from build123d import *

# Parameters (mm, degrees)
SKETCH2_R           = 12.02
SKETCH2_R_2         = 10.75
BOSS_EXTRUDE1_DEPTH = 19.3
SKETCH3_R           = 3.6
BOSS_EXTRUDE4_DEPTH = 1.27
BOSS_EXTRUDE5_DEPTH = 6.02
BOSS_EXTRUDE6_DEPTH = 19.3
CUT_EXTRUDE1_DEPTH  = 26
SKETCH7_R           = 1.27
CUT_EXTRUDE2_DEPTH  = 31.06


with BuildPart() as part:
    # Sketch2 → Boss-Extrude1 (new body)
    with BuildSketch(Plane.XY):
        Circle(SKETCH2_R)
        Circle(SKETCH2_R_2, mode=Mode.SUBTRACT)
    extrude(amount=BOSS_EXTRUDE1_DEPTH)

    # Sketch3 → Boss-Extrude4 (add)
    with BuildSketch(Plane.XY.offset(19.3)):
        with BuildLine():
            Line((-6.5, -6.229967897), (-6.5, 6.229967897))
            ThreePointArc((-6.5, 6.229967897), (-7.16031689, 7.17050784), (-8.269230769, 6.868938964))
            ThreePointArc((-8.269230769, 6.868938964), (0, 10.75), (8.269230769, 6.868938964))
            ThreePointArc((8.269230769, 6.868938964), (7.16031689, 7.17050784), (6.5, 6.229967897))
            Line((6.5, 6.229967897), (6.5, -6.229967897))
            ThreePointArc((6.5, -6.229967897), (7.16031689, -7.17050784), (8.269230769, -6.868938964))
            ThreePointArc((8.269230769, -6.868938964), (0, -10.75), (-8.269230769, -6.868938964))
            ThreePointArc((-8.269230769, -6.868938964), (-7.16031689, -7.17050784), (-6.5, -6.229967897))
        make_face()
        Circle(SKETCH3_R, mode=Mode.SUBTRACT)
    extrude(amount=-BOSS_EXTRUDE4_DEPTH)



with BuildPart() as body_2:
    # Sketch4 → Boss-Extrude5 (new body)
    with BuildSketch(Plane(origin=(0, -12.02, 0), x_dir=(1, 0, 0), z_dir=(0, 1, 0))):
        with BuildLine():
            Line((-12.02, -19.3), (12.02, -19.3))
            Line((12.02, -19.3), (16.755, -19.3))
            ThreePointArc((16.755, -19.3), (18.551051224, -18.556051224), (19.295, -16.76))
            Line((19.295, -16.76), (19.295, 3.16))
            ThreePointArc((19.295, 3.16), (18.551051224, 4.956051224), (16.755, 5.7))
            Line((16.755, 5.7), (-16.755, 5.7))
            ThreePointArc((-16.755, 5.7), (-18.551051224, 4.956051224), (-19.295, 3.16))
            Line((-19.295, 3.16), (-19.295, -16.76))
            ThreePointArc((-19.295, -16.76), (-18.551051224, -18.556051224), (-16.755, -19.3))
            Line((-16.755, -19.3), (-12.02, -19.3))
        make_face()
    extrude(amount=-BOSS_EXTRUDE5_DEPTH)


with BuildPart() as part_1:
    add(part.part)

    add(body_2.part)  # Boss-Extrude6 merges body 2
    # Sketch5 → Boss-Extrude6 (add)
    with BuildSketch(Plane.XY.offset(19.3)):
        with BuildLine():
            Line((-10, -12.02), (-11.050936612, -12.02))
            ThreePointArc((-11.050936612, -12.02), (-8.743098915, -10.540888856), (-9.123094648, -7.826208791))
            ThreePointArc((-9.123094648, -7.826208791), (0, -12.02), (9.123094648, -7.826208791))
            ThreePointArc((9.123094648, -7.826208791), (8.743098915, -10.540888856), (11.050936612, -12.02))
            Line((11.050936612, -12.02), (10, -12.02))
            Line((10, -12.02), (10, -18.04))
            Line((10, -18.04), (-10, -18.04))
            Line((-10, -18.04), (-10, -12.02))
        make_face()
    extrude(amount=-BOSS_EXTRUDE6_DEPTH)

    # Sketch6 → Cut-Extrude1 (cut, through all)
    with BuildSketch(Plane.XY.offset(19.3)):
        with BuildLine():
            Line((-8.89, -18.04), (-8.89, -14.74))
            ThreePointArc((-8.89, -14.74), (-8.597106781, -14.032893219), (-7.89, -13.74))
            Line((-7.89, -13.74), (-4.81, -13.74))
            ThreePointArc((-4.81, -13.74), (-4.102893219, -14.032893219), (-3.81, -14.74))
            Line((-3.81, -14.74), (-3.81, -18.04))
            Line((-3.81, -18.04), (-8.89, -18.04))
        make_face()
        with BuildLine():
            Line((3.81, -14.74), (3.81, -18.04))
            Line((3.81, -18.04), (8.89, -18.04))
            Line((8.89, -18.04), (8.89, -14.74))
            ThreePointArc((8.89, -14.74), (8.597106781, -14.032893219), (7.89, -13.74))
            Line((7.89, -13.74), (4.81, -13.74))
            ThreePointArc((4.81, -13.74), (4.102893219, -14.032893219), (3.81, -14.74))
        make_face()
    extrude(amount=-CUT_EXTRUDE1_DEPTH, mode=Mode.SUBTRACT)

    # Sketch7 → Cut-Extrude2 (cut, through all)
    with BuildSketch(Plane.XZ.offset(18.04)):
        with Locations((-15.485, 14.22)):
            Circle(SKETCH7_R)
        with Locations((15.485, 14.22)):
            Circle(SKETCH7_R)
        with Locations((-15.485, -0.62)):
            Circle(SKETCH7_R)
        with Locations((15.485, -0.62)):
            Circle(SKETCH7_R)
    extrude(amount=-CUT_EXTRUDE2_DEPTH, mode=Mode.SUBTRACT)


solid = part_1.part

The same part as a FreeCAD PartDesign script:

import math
import FreeCAD as App
import Part
import Sketcher
from FreeCAD import Vector
Q = App.Units.Quantity

doc = App.newDocument("Part")
params = doc.addObject("Spreadsheet::Sheet", "Params")
for row, (alias, value) in enumerate([
    ("sketch1_diameter", "21.5 mm"),
    ("sketch1_diameter2", "24.04 mm"),
    ("pad1_length", "19.3 mm"),
    ("sketch2_radius", "1 mm"),
    ("sketch2_diameter", "7.2 mm"),
    ("sketch2_radius2", "10.75 mm"),
    ("pad2_length", "1.27 mm"),
    ("sketch3_radius", "2.54 mm"),
    ("sketch3_width", "33.51 mm"),
    ("pad3_length", "6.02 mm"),
    ("sketch4_width", "20 mm"),
    ("sketch4_radius", "2.54 mm"),
    ("sketch4_radius2", "12.02 mm"),
    ("sketch4_height", "6.02 mm"),
    ("pad4_length", "19.3 mm"),
    ("sketch5_radius", "1 mm"),
    ("sketch5_height", "3.3 mm"),
    ("sketch5_width", "5.08 mm"),
    ("sketch6_diameter", "2.54 mm"),
], start=1):
    params.set(f"A{row}", alias)
    params.set(f"B{row}", "=" + value)
    params.setAlias(f"B{row}", alias)

body = doc.addObject("PartDesign::Body", "Body")

# Sketch on XY plane
sketch1 = body.newObject("Sketcher::SketchObject", "Sketch")
sketch1.AttachmentSupport = (doc.getObject("XY_Plane"), [""])
sketch1.MapMode = "FlatFace"
sketch1.addGeometry(Part.Circle(Vector(0, 0, 0), Vector(0, 0, 1), 12), False)
sketch1.addGeometry(Part.Circle(Vector(0, 0, 0), Vector(0, 0, 1), 11), False)
sketch1.addConstraint(Sketcher.Constraint("Coincident", 0, 3, -1, 1))
sketch1.addConstraint(Sketcher.Constraint("Coincident", 1, 3, -1, 1))
sketch1.addConstraint(Sketcher.Constraint("Diameter", 1, Q("21.5 mm")))
sketch1.addConstraint(Sketcher.Constraint("Diameter", 0, Q("24.04 mm")))
sketch1.setExpression("Constraints[2]", "Params.sketch1_diameter")
sketch1.setExpression("Constraints[3]", "Params.sketch1_diameter2")
pad1 = body.newObject("PartDesign::Pad", "Pad")
pad1.Profile = sketch1
pad1.setExpression("Length", "Params.pad1_length")

# Sketch on XY plane
sketch2 = body.newObject("Sketcher::SketchObject", "Sketch001")
sketch2.AttachmentSupport = (doc.getObject("XY_Plane"), [""])
sketch2.MapMode = "FlatFace"
sketch2.AttachmentOffset = App.Placement(Vector(0, 0, 19.3), App.Rotation())
sketch2.addGeometry(Part.LineSegment(Vector(-6.5, 6.2, 0), Vector(-6.5, -6.2, 0)), False)
sketch2.addGeometry(Part.ArcOfCircle(Part.Circle(Vector(-7.5, -6.2, 0), Vector(0, 0, 1), 1), math.radians(-140), math.radians(0)), False)
sketch2.addGeometry(Part.ArcOfCircle(Part.Circle(Vector(0, 0, 0), Vector(0, 0, 1), 10.8), math.radians(-140), math.radians(-40)), False)
sketch2.addGeometry(Part.ArcOfCircle(Part.Circle(Vector(7.5, -6.2, 0), Vector(0, 0, 1), 1), math.radians(180), math.radians(320)), False)
sketch2.addGeometry(Part.LineSegment(Vector(6.5, -6.2, 0), Vector(6.5, 6.2, 0)), False)
sketch2.addGeometry(Part.ArcOfCircle(Part.Circle(Vector(7.5, 6.2, 0), Vector(0, 0, 1), 1), math.radians(40), math.radians(180)), False)
sketch2.addGeometry(Part.ArcOfCircle(Part.Circle(Vector(0, 0, 0), Vector(0, 0, 1), 10.8), math.radians(40), math.radians(140)), False)
sketch2.addGeometry(Part.ArcOfCircle(Part.Circle(Vector(-7.5, 6.2, 0), Vector(0, 0, 1), 1), math.radians(0), math.radians(140)), False)
sketch2.addGeometry(Part.Circle(Vector(0, 0, 0), Vector(0, 0, 1), 3.6), False)
sketch2.addConstraint(Sketcher.Constraint("Tangent", 0, 2, 1, 2))
sketch2.addConstraint(Sketcher.Constraint("Tangent", 1, 1, 2, 1))
sketch2.addConstraint(Sketcher.Constraint("Tangent", 2, 2, 3, 2))
sketch2.addConstraint(Sketcher.Constraint("Tangent", 3, 1, 4, 1))
sketch2.addConstraint(Sketcher.Constraint("Tangent", 4, 2, 5, 2))
sketch2.addConstraint(Sketcher.Constraint("Tangent", 5, 1, 6, 1))
sketch2.addConstraint(Sketcher.Constraint("Tangent", 6, 2, 7, 2))
sketch2.addConstraint(Sketcher.Constraint("Tangent", 7, 1, 0, 1))
sketch2.addConstraint(Sketcher.Constraint("Vertical", 0))
sketch2.addConstraint(Sketcher.Constraint("Vertical", 4))
sketch2.addConstraint(Sketcher.Constraint("Coincident", 2, 3, -1, 1))
sketch2.addConstraint(Sketcher.Constraint("Coincident", 6, 3, -1, 1))
sketch2.addConstraint(Sketcher.Constraint("Coincident", 8, 3, -1, 1))
sketch2.addConstraint(Sketcher.Constraint("Equal", 1, 3))
sketch2.addConstraint(Sketcher.Constraint("Equal", 3, 5))
sketch2.addConstraint(Sketcher.Constraint("Equal", 2, 6))
sketch2.addConstraint(Sketcher.Constraint("Equal", 5, 7))
sketch2.addConstraint(Sketcher.Constraint("Horizontal", 1, 3, 3, 3))
sketch2.addConstraint(Sketcher.Constraint("Radius", 1, Q("1 mm")))
sketch2.addConstraint(Sketcher.Constraint("Diameter", 8, Q("7.2 mm")))
sketch2.addConstraint(Sketcher.Constraint("Radius", 2, Q("10.75 mm")))
sketch2.addConstraint(Sketcher.Constraint("DistanceX", 1, 3, 3, 3, Q("15 mm")))
sketch2.setExpression("Constraints[18]", "Params.sketch2_radius")
sketch2.setExpression("Constraints[19]", "Params.sketch2_diameter")
sketch2.setExpression("Constraints[20]", "Params.sketch2_radius2")
pad2 = body.newObject("PartDesign::Pad", "Pad001")
pad2.Profile = sketch2
pad2.setExpression("Length", "Params.pad2_length")
pad2.Reversed = True
body2 = doc.addObject("PartDesign::Body", "Body001")

# Sketch on XZ plane
sketch3 = body2.newObject("Sketcher::SketchObject", "Sketch002")
sketch3.AttachmentSupport = (doc.getObject("XZ_Plane001"), [""])
sketch3.MapMode = "FlatFace"
sketch3.AttachmentOffset = App.Placement(Vector(0, 0, 12.02), App.Rotation())
sketch3.addGeometry(Part.ArcOfCircle(Part.Circle(Vector(16.8, 16.8, 0), Vector(0, 0, 1), 2.5), math.radians(0), math.radians(90)), False)
sketch3.addGeometry(Part.LineSegment(Vector(19.3, 16.8, 0), Vector(19.3, -3.2, 0)), False)
sketch3.addGeometry(Part.ArcOfCircle(Part.Circle(Vector(16.8, -3.2, 0), Vector(0, 0, 1), 2.5), math.radians(-90), math.radians(0)), False)
sketch3.addGeometry(Part.LineSegment(Vector(16.8, -5.7, 0), Vector(-16.8, -5.7, 0)), False)
sketch3.addGeometry(Part.ArcOfCircle(Part.Circle(Vector(-16.8, -3.2, 0), Vector(0, 0, 1), 2.5), math.radians(-180), math.radians(-90)), False)
sketch3.addGeometry(Part.LineSegment(Vector(-19.3, -3.2, 0), Vector(-19.3, 16.8, 0)), False)
sketch3.addGeometry(Part.ArcOfCircle(Part.Circle(Vector(-16.8, 16.8, 0), Vector(0, 0, 1), 2.5), math.radians(90), math.radians(180)), False)
sketch3.addGeometry(Part.LineSegment(Vector(-16.8, 19.3, 0), Vector(16.8, 19.3, 0)), False)
sketch3.addConstraint(Sketcher.Constraint("Tangent", 0, 1, 1, 1))
sketch3.addConstraint(Sketcher.Constraint("Tangent", 1, 2, 2, 2))
sketch3.addConstraint(Sketcher.Constraint("Tangent", 2, 1, 3, 1))
sketch3.addConstraint(Sketcher.Constraint("Tangent", 3, 2, 4, 2))
sketch3.addConstraint(Sketcher.Constraint("Tangent", 4, 1, 5, 1))
sketch3.addConstraint(Sketcher.Constraint("Tangent", 5, 2, 6, 2))
sketch3.addConstraint(Sketcher.Constraint("Tangent", 6, 1, 7, 1))
sketch3.addConstraint(Sketcher.Constraint("Tangent", 7, 2, 0, 2))
sketch3.addConstraint(Sketcher.Constraint("Vertical", 1))
sketch3.addConstraint(Sketcher.Constraint("Horizontal", 3))
sketch3.addConstraint(Sketcher.Constraint("Vertical", 5))
sketch3.addConstraint(Sketcher.Constraint("Horizontal", 7))
sketch3.addConstraint(Sketcher.Constraint("Equal", 0, 2))
sketch3.addConstraint(Sketcher.Constraint("Equal", 2, 4))
sketch3.addConstraint(Sketcher.Constraint("Equal", 4, 6))
sketch3.addConstraint(Sketcher.Constraint("Radius", 0, Q("2.54 mm")))
sketch3.addConstraint(Sketcher.Constraint("DistanceY", 3, 2, 6, 1, Q("25 mm")))
sketch3.addConstraint(Sketcher.Constraint("DistanceX", 3, 2, 3, 1, Q("33.51 mm")))
sketch3.addConstraint(Sketcher.Constraint("DistanceY", 2, 1, -1, 1, Q("5.7 mm")))
sketch3.addConstraint(Sketcher.Constraint("DistanceX", -1, 1, 0, 3, Q("16.755 mm")))
sketch3.setExpression("Constraints[15]", "Params.sketch3_radius")
sketch3.setExpression("Constraints[17]", "Params.sketch3_width")
pad3 = body2.newObject("PartDesign::Pad", "Pad002")
pad3.Profile = sketch3
pad3.setExpression("Length", "Params.pad3_length")
body.AllowCompound = True
doc.recompute()

boolean = body.newObject("PartDesign::Boolean", "Boolean")
boolean.Type = "Fuse"
boolean.addObjects([body2])

# Sketch on XY plane
sketch4 = body.newObject("Sketcher::SketchObject", "Sketch003")
sketch4.AttachmentSupport = (doc.getObject("XY_Plane"), [""])
sketch4.MapMode = "FlatFace"
sketch4.AttachmentOffset = App.Placement(Vector(0, 0, 19.3), App.Rotation())
sketch4.addGeometry(Part.LineSegment(Vector(-11.1, -12, 0), Vector(-10, -12, 0)), False)
sketch4.addGeometry(Part.LineSegment(Vector(-10, -12, 0), Vector(-10, -18, 0)), False)
sketch4.addGeometry(Part.LineSegment(Vector(-10, -18, 0), Vector(10, -18, 0)), False)
sketch4.addGeometry(Part.LineSegment(Vector(10, -18, 0), Vector(10, -12, 0)), False)
sketch4.addGeometry(Part.LineSegment(Vector(10, -12, 0), Vector(11.1, -12, 0)), False)
sketch4.addGeometry(Part.ArcOfCircle(Part.Circle(Vector(11.1, -9.5, 0), Vector(0, 0, 1), 2.5), math.radians(139), math.radians(270)), False)
sketch4.addGeometry(Part.ArcOfCircle(Part.Circle(Vector(0, 0, 0), Vector(0, 0, 1), 12), math.radians(-139), math.radians(-41)), False)
sketch4.addGeometry(Part.ArcOfCircle(Part.Circle(Vector(-11.1, -9.5, 0), Vector(0, 0, 1), 2.5), math.radians(-90), math.radians(41)), False)
sketch4.addConstraint(Sketcher.Constraint("Coincident", 0, 2, 1, 1))
sketch4.addConstraint(Sketcher.Constraint("Coincident", 1, 2, 2, 1))
sketch4.addConstraint(Sketcher.Constraint("Coincident", 2, 2, 3, 1))
sketch4.addConstraint(Sketcher.Constraint("Coincident", 3, 2, 4, 1))
sketch4.addConstraint(Sketcher.Constraint("Tangent", 4, 2, 5, 2))
sketch4.addConstraint(Sketcher.Constraint("Tangent", 5, 1, 6, 2))
sketch4.addConstraint(Sketcher.Constraint("Tangent", 6, 1, 7, 2))
sketch4.addConstraint(Sketcher.Constraint("Tangent", 7, 1, 0, 1))
sketch4.addConstraint(Sketcher.Constraint("Horizontal", 0))
sketch4.addConstraint(Sketcher.Constraint("Vertical", 1))
sketch4.addConstraint(Sketcher.Constraint("Horizontal", 2))
sketch4.addConstraint(Sketcher.Constraint("Vertical", 3))
sketch4.addConstraint(Sketcher.Constraint("Horizontal", 4))
sketch4.addConstraint(Sketcher.Constraint("Coincident", 6, 3, -1, 1))
sketch4.addConstraint(Sketcher.Constraint("Equal", 5, 7))
sketch4.addConstraint(Sketcher.Constraint("Symmetric", 0, 2, 3, 2, -2))
sketch4.addConstraint(Sketcher.Constraint("DistanceX", 2, 1, 2, 2, Q("20 mm")))
sketch4.addConstraint(Sketcher.Constraint("Radius", 5, Q("2.54 mm")))
sketch4.addConstraint(Sketcher.Constraint("Radius", 6, Q("12.02 mm")))
sketch4.addConstraint(Sketcher.Constraint("DistanceY", 1, 2, 1, 1, Q("6.02 mm")))
sketch4.addConstraint(Sketcher.Constraint("DistanceY", 5, 3, -1, 1, Q("9.48 mm")))
sketch4.setExpression("Constraints[16]", "Params.sketch4_width")
sketch4.setExpression("Constraints[17]", "Params.sketch4_radius")
sketch4.setExpression("Constraints[18]", "Params.sketch4_radius2")
sketch4.setExpression("Constraints[19]", "Params.sketch4_height")
pad4 = body.newObject("PartDesign::Pad", "Pad003")
pad4.Profile = sketch4
pad4.setExpression("Length", "Params.pad4_length")
pad4.Reversed = True

# Sketch on XY plane
sketch5 = body.newObject("Sketcher::SketchObject", "Sketch004")
sketch5.AttachmentSupport = (doc.getObject("XY_Plane"), [""])
sketch5.MapMode = "FlatFace"
sketch5.AttachmentOffset = App.Placement(Vector(0, 0, 19.3), App.Rotation())
sketch5.addGeometry(Part.LineSegment(Vector(-8.9, -14.7, 0), Vector(-8.9, -18, 0)), False)
sketch5.addGeometry(Part.LineSegment(Vector(-8.9, -18, 0), Vector(-3.8, -18, 0)), False)
sketch5.addGeometry(Part.LineSegment(Vector(-3.8, -18, 0), Vector(-3.8, -14.7, 0)), False)
sketch5.addGeometry(Part.ArcOfCircle(Part.Circle(Vector(-4.8, -14.7, 0), Vector(0, 0, 1), 1), math.radians(0), math.radians(90)), False)
sketch5.addGeometry(Part.LineSegment(Vector(-4.8, -13.7, 0), Vector(-7.9, -13.7, 0)), False)
sketch5.addGeometry(Part.ArcOfCircle(Part.Circle(Vector(-7.9, -14.7, 0), Vector(0, 0, 1), 1), math.radians(90), math.radians(180)), False)
sketch5.addGeometry(Part.LineSegment(Vector(3.8, -14.7, 0), Vector(3.8, -18, 0)), False)
sketch5.addGeometry(Part.LineSegment(Vector(3.8, -18, 0), Vector(8.9, -18, 0)), False)
sketch5.addGeometry(Part.LineSegment(Vector(8.9, -18, 0), Vector(8.9, -14.7, 0)), False)
sketch5.addGeometry(Part.ArcOfCircle(Part.Circle(Vector(7.9, -14.7, 0), Vector(0, 0, 1), 1), math.radians(0), math.radians(90)), False)
sketch5.addGeometry(Part.LineSegment(Vector(7.9, -13.7, 0), Vector(4.8, -13.7, 0)), False)
sketch5.addGeometry(Part.ArcOfCircle(Part.Circle(Vector(4.8, -14.7, 0), Vector(0, 0, 1), 1), math.radians(90), math.radians(180)), False)
sketch5.addConstraint(Sketcher.Constraint("Coincident", 0, 2, 1, 1))
sketch5.addConstraint(Sketcher.Constraint("Coincident", 1, 2, 2, 1))
sketch5.addConstraint(Sketcher.Constraint("Tangent", 2, 2, 3, 1))
sketch5.addConstraint(Sketcher.Constraint("Tangent", 3, 2, 4, 1))
sketch5.addConstraint(Sketcher.Constraint("Tangent", 4, 2, 5, 1))
sketch5.addConstraint(Sketcher.Constraint("Tangent", 5, 2, 0, 1))
sketch5.addConstraint(Sketcher.Constraint("Coincident", 6, 2, 7, 1))
sketch5.addConstraint(Sketcher.Constraint("Coincident", 7, 2, 8, 1))
sketch5.addConstraint(Sketcher.Constraint("Tangent", 8, 2, 9, 1))
sketch5.addConstraint(Sketcher.Constraint("Tangent", 9, 2, 10, 1))
sketch5.addConstraint(Sketcher.Constraint("Tangent", 10, 2, 11, 1))
sketch5.addConstraint(Sketcher.Constraint("Tangent", 11, 2, 6, 1))
sketch5.addConstraint(Sketcher.Constraint("Vertical", 0))
sketch5.addConstraint(Sketcher.Constraint("Horizontal", 1))
sketch5.addConstraint(Sketcher.Constraint("Vertical", 2))
sketch5.addConstraint(Sketcher.Constraint("Horizontal", 4))
sketch5.addConstraint(Sketcher.Constraint("Vertical", 6))
sketch5.addConstraint(Sketcher.Constraint("Horizontal", 7))
sketch5.addConstraint(Sketcher.Constraint("Vertical", 8))
sketch5.addConstraint(Sketcher.Constraint("Horizontal", 10))
sketch5.addConstraint(Sketcher.Constraint("Equal", 3, 5))
sketch5.addConstraint(Sketcher.Constraint("Equal", 5, 9))
sketch5.addConstraint(Sketcher.Constraint("Equal", 9, 11))
sketch5.addConstraint(Sketcher.Constraint("Symmetric", 5, 3, 9, 3, -2))
sketch5.addConstraint(Sketcher.Constraint("Symmetric", 1, 2, 6, 2, -2))
sketch5.addConstraint(Sketcher.Constraint("Radius", 3, Q("1 mm")))
sketch5.addConstraint(Sketcher.Constraint("DistanceY", 0, 2, 0, 1, Q("3.3 mm")))
sketch5.addConstraint(Sketcher.Constraint("DistanceX", 1, 1, 1, 2, Q("5.08 mm")))
sketch5.addConstraint(Sketcher.Constraint("DistanceX", 3, 3, 9, 3, Q("12.7 mm")))
sketch5.addConstraint(Sketcher.Constraint("DistanceY", 3, 3, -1, 1, Q("14.74 mm")))
sketch5.setExpression("Constraints[25]", "Params.sketch5_radius")
sketch5.setExpression("Constraints[26]", "Params.sketch5_height")
sketch5.setExpression("Constraints[27]", "Params.sketch5_width")
pocket1 = body.newObject("PartDesign::Pocket", "Pocket")
pocket1.Profile = sketch5
pocket1.Type = "ThroughAll"

# Sketch on XZ plane
sketch6 = body.newObject("Sketcher::SketchObject", "Sketch005")
sketch6.AttachmentSupport = (doc.getObject("XZ_Plane"), [""])
sketch6.MapMode = "FlatFace"
sketch6.AttachmentOffset = App.Placement(Vector(0, 0, 18.04), App.Rotation())
sketch6.addGeometry(Part.Circle(Vector(-15.5, 14.2, 0), Vector(0, 0, 1), 1.3), False)
sketch6.addGeometry(Part.Circle(Vector(15.5, 14.2, 0), Vector(0, 0, 1), 1.3), False)
sketch6.addGeometry(Part.Circle(Vector(-15.5, -0.6, 0), Vector(0, 0, 1), 1.3), False)
sketch6.addGeometry(Part.Circle(Vector(15.5, -0.6, 0), Vector(0, 0, 1), 1.3), False)
sketch6.addConstraint(Sketcher.Constraint("Equal", 0, 1))
sketch6.addConstraint(Sketcher.Constraint("Equal", 1, 2))
sketch6.addConstraint(Sketcher.Constraint("Equal", 2, 3))
sketch6.addConstraint(Sketcher.Constraint("Symmetric", 0, 3, 1, 3, -2))
sketch6.addConstraint(Sketcher.Constraint("Symmetric", 2, 3, 3, 3, -2))
sketch6.addConstraint(Sketcher.Constraint("Vertical", 0, 3, 2, 3))
sketch6.addConstraint(Sketcher.Constraint("Diameter", 0, Q("2.54 mm")))
sketch6.addConstraint(Sketcher.Constraint("DistanceY", -1, 1, 0, 3, Q("14.22 mm")))
sketch6.addConstraint(Sketcher.Constraint("DistanceY", 2, 3, -1, 1, Q("0.62 mm")))
sketch6.addConstraint(Sketcher.Constraint("DistanceX", 0, 3, 1, 3, Q("30.97 mm")))
sketch6.setExpression("Constraints[6]", "Params.sketch6_diameter")
pocket2 = body.newObject("PartDesign::Pocket", "Pocket001")
pocket2.Profile = sketch6
pocket2.Type = "ThroughAll"

doc.recompute()
